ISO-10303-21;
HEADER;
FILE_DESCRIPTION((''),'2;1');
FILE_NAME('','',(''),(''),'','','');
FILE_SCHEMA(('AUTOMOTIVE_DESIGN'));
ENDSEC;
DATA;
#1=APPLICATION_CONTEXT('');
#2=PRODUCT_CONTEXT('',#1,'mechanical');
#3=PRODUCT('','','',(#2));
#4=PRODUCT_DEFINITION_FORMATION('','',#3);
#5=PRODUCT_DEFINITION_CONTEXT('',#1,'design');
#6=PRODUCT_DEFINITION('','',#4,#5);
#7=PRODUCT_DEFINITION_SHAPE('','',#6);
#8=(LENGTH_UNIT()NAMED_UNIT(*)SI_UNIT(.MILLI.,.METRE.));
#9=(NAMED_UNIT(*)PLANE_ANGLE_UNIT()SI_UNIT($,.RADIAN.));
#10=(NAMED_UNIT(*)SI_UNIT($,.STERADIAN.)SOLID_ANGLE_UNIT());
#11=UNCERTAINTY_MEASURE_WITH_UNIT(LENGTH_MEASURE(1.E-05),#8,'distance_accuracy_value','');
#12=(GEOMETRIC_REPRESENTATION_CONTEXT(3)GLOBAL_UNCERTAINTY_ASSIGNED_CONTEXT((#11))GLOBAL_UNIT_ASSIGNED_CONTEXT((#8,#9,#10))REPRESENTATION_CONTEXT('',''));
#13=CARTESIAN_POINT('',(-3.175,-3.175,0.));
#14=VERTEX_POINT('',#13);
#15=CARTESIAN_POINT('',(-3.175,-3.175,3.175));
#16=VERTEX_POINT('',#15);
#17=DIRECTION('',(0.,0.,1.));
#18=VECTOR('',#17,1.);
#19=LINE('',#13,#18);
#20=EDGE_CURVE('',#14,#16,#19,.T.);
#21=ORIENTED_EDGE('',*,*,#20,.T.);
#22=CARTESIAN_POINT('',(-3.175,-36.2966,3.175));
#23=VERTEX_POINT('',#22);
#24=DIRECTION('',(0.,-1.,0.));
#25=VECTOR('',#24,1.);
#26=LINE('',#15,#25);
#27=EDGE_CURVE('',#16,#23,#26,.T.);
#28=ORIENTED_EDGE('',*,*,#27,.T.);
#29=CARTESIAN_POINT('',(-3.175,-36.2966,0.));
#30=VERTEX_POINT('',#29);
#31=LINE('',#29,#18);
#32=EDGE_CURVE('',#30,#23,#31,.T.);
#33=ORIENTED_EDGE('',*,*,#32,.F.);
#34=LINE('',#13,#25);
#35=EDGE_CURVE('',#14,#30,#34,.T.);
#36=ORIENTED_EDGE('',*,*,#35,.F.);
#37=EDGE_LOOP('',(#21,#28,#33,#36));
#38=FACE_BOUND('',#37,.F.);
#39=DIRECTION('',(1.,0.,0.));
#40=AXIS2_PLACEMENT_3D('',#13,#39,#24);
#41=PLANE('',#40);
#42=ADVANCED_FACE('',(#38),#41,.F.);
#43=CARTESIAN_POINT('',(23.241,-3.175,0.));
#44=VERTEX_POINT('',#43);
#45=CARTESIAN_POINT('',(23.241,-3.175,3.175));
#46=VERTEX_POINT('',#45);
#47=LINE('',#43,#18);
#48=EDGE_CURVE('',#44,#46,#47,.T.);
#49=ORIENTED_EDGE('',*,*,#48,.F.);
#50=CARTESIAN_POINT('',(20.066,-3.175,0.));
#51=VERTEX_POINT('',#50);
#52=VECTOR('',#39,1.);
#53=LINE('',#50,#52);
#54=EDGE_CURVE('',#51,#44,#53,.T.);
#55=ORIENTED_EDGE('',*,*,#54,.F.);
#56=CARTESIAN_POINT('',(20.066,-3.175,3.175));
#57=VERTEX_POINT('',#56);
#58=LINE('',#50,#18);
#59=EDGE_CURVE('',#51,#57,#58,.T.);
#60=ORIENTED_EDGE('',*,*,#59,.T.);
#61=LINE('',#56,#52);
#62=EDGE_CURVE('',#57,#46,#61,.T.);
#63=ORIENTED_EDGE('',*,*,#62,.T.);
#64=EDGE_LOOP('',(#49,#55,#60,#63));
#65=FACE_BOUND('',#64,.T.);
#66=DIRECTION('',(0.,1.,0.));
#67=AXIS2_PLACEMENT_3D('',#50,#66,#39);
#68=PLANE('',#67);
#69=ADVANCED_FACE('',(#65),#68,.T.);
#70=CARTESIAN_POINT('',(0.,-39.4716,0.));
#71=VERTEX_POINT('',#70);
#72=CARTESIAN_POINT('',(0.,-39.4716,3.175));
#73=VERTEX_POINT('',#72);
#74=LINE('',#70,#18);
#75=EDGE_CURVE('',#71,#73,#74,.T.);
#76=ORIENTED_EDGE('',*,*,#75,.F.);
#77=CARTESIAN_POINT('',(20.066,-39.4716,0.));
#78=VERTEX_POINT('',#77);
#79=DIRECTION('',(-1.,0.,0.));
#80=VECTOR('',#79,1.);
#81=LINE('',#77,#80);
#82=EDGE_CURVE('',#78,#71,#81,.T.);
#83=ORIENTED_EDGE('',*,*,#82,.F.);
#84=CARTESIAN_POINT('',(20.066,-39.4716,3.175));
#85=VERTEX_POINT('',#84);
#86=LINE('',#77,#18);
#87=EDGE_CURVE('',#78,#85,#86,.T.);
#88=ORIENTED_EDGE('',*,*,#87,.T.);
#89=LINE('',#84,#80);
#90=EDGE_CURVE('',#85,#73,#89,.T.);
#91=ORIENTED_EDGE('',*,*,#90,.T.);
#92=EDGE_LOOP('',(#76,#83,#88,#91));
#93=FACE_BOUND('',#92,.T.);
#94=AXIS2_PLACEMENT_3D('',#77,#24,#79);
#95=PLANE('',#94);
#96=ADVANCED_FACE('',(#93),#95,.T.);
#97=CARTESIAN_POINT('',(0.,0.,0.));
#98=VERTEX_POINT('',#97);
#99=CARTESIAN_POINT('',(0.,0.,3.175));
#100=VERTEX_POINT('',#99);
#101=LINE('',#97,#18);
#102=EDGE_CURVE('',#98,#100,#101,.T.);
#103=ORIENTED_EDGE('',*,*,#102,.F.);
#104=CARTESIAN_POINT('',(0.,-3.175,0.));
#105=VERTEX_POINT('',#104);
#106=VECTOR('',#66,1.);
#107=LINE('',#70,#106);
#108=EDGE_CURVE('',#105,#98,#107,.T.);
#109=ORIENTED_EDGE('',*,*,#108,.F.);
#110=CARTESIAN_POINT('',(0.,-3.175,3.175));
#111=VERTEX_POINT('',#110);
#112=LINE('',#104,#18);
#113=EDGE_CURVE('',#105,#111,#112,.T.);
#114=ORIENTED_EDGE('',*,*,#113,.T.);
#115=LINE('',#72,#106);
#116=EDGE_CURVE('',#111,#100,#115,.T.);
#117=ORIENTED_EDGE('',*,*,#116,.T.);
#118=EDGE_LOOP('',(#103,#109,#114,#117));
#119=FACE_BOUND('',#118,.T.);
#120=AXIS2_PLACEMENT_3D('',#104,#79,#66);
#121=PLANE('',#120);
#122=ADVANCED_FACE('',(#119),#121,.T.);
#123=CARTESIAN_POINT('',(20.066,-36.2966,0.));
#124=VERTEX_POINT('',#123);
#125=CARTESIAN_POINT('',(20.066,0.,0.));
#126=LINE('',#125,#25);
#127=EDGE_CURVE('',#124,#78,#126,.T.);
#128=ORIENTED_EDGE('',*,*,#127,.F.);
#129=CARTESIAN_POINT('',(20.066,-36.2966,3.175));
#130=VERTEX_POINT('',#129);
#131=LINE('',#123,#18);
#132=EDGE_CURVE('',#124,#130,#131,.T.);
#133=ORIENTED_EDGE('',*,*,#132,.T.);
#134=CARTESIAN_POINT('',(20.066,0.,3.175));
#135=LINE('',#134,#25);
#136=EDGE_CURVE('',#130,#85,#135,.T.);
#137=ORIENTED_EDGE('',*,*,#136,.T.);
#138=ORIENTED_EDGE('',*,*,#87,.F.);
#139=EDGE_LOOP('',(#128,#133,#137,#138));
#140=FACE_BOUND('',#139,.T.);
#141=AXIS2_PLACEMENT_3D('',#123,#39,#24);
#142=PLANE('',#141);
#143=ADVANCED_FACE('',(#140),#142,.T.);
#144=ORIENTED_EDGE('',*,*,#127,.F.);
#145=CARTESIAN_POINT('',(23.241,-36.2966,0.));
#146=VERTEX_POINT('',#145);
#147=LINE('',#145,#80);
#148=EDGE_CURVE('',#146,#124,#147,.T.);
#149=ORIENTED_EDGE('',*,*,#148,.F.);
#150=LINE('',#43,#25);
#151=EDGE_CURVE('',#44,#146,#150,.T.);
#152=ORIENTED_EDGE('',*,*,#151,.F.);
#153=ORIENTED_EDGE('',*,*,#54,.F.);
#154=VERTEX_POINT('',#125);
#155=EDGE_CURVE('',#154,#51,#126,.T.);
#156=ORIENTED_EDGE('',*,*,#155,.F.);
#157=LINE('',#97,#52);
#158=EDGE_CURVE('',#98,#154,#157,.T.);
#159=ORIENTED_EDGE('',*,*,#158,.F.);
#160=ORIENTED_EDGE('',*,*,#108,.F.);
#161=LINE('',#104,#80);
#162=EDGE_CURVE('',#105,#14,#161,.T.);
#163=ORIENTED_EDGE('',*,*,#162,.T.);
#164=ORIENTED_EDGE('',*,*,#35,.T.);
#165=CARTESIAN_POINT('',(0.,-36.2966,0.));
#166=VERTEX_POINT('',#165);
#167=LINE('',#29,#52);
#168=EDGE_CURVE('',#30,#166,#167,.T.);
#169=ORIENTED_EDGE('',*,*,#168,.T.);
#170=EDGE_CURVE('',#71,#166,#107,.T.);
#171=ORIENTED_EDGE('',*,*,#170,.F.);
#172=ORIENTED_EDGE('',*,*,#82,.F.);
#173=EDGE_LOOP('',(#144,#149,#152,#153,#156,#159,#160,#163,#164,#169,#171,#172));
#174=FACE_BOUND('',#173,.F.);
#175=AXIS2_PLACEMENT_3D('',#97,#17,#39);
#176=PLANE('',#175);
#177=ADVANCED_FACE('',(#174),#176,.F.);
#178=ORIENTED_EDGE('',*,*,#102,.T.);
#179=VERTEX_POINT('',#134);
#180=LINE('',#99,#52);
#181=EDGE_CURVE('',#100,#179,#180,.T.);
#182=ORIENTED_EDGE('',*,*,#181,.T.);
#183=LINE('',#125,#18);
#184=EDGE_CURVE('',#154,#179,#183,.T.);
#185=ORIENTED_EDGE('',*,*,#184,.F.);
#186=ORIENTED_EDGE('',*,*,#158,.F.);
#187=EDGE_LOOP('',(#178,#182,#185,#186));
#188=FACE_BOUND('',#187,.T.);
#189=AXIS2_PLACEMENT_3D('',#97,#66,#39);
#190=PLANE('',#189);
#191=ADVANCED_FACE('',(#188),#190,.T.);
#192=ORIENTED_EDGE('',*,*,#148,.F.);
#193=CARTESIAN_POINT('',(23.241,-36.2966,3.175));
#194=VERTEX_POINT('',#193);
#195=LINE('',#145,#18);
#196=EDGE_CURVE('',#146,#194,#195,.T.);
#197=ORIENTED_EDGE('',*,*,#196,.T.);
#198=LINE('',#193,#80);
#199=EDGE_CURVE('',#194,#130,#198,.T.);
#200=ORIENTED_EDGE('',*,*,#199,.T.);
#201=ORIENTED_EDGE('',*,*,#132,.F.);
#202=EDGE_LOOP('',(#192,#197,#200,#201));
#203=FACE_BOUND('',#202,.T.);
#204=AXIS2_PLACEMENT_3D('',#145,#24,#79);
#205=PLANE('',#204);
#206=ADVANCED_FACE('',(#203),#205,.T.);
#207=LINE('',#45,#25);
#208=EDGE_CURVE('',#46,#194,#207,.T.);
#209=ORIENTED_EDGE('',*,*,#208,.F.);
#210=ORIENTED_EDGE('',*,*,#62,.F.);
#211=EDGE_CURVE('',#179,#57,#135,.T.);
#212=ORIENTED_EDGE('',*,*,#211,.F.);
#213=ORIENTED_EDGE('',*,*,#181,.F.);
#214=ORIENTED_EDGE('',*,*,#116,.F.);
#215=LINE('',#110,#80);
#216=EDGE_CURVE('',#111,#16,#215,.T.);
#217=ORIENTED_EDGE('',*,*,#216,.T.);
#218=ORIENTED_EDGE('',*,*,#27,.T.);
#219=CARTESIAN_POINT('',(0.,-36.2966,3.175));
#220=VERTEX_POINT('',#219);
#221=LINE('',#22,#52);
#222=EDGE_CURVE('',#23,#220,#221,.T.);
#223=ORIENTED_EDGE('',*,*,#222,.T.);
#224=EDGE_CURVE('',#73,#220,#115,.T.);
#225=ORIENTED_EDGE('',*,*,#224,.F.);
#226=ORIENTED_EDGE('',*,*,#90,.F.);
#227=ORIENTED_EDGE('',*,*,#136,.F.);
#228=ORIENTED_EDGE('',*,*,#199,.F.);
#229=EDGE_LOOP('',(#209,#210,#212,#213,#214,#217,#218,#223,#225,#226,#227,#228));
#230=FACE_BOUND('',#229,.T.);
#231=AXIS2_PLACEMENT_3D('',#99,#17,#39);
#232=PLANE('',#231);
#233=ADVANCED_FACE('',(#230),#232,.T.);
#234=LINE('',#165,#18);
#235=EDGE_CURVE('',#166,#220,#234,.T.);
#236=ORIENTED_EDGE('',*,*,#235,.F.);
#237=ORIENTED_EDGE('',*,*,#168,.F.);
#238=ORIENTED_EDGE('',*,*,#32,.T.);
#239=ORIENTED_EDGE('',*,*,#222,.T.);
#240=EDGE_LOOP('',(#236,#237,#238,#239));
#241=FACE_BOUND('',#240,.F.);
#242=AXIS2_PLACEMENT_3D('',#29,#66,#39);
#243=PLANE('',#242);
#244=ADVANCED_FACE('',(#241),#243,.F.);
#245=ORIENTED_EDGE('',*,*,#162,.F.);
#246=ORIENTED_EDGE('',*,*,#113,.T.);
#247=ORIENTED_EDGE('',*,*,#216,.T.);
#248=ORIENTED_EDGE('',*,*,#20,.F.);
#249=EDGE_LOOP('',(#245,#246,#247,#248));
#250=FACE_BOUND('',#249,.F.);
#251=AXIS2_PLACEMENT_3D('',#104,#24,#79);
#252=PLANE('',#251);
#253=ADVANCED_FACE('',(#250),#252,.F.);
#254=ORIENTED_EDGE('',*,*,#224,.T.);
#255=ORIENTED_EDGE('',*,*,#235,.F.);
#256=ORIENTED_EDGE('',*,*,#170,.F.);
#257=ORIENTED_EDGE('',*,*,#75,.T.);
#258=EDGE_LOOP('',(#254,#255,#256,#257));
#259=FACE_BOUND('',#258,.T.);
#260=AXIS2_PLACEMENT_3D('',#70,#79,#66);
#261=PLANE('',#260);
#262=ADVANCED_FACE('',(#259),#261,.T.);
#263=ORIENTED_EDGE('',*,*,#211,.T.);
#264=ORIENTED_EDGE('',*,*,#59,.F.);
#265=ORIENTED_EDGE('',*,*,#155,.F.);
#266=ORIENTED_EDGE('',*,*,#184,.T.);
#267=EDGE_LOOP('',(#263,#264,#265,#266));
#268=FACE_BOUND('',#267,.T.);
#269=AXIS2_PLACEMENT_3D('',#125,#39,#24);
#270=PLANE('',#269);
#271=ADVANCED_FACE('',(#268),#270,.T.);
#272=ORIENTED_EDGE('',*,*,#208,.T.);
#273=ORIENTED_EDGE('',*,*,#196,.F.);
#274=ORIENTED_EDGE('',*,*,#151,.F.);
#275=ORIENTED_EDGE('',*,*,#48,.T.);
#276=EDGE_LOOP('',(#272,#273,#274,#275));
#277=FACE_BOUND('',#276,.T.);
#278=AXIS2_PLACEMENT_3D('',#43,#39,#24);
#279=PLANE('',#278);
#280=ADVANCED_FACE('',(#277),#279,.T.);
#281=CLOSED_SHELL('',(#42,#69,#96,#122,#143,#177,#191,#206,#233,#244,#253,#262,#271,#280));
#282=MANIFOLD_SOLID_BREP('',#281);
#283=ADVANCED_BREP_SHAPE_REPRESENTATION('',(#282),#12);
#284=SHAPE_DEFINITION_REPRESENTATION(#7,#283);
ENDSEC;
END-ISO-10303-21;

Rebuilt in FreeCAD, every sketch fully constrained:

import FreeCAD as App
import Part
import Sketcher
Q = App.Units.Quantity

doc = App.newDocument("Part")
body = doc.addObject("PartDesign::Body", "Body")

sketch1 = doc.addObject("Sketcher::SketchObject", "Sketch")
body.addObject(sketch1)
sketch1.AttachmentSupport = (doc.XY_Plane, [""])
sketch1.MapMode = "FlatFace"
sketch1.addGeometry(Part.LineSegment(App.Vector(20.1, 0, 0), App.Vector(0, 0, 0)), False)
sketch1.addGeometry(Part.LineSegment(App.Vector(0, 0, 0), App.Vector(0, -3.2, 0)), False)
sketch1.addGeometry(Part.LineSegment(App.Vector(0, -3.2, 0), App.Vector(-3.2, -3.2, 0)), False)
sketch1.addGeometry(Part.LineSegment(App.Vector(-3.2, -3.2, 0), App.Vector(-3.2, -36.3, 0)), False)
sketch1.addGeometry(Part.LineSegment(App.Vector(-3.2, -36.3, 0), App.Vector(0, -36.3, 0)), False)
sketch1.addGeometry(Part.LineSegment(App.Vector(0, -36.3, 0), App.Vector(0, -39.5, 0)), False)
sketch1.addGeometry(Part.LineSegment(App.Vector(0, -39.5, 0), App.Vector(20.1, -39.5, 0)), False)
sketch1.addGeometry(Part.LineSegment(App.Vector(20.1, -39.5, 0), App.Vector(20.1, -36.3, 0)), False)
sketch1.addGeometry(Part.LineSegment(App.Vector(20.1, -36.3, 0), App.Vector(23.2, -36.3, 0)), False)
sketch1.addGeometry(Part.LineSegment(App.Vector(23.2, -36.3, 0), App.Vector(23.2, -3.2, 0)), False)
sketch1.addGeometry(Part.LineSegment(App.Vector(23.2, -3.2, 0), App.Vector(20.1, -3.2, 0)), False)
sketch1.addGeometry(Part.LineSegment(App.Vector(20.1, -3.2, 0), App.Vector(20.1, 0, 0)), False)
sketch1.addConstraint(Sketcher.Constraint("Coincident", 0, 2, 1, 1))
sketch1.addConstraint(Sketcher.Constraint("Coincident", 1, 2, 2, 1))
sketch1.addConstraint(Sketcher.Constraint("Coincident", 2, 2, 3, 1))
sketch1.addConstraint(Sketcher.Constraint("Coincident", 3, 2, 4, 1))
sketch1.addConstraint(Sketcher.Constraint("Coincident", 4, 2, 5, 1))
sketch1.addConstraint(Sketcher.Constraint("Coincident", 5, 2, 6, 1))
sketch1.addConstraint(Sketcher.Constraint("Coincident", 6, 2, 7, 1))
sketch1.addConstraint(Sketcher.Constraint("Coincident", 7, 2, 8, 1))
sketch1.addConstraint(Sketcher.Constraint("Coincident", 8, 2, 9, 1))
sketch1.addConstraint(Sketcher.Constraint("Coincident", 9, 2, 10, 1))
sketch1.addConstraint(Sketcher.Constraint("Coincident", 10, 2, 11, 1))
sketch1.addConstraint(Sketcher.Constraint("Coincident", 11, 2, 0, 1))
sketch1.addConstraint(Sketcher.Constraint("Horizontal", 0))
sketch1.addConstraint(Sketcher.Constraint("Vertical", 1))
sketch1.addConstraint(Sketcher.Constraint("Horizontal", 2))
sketch1.addConstraint(Sketcher.Constraint("Vertical", 3))
sketch1.addConstraint(Sketcher.Constraint("Horizontal", 4))
sketch1.addConstraint(Sketcher.Constraint("Vertical", 5))
sketch1.addConstraint(Sketcher.Constraint("Horizontal", 6))
sketch1.addConstraint(Sketcher.Constraint("Vertical", 7))
sketch1.addConstraint(Sketcher.Constraint("Horizontal", 8))
sketch1.addConstraint(Sketcher.Constraint("Vertical", 9))
sketch1.addConstraint(Sketcher.Constraint("Horizontal", 10))
sketch1.addConstraint(Sketcher.Constraint("Vertical", 11))
sketch1.addConstraint(Sketcher.Constraint("Coincident", 0, 2, -1, 1))
sketch1.addConstraint(Sketcher.Constraint("PointOnObject", 4, 2, -2))
sketch1.addConstraint(Sketcher.Constraint("Horizontal", 4, 2, 7, 2))
sketch1.addConstraint(Sketcher.Constraint("Horizontal", 2, 2, 9, 2))
sketch1.addConstraint(Sketcher.Constraint("Vertical", 7, 2, 10, 2))
sketch1.addConstraint(Sketcher.Constraint("Equal", 4, 8))
sketch1.addConstraint(Sketcher.Constraint("Equal", 10, 1))
sketch1.addConstraint(Sketcher.Constraint("Equal", 1, 5))
sketch1.addConstraint(Sketcher.Constraint("DistanceX", 0, 2, 0, 1, Q("0.79 in")))
sketch1.addConstraint(Sketcher.Constraint("DistanceX", 2, 2, 2, 1, Q("0.125 in")))
sketch1.addConstraint(Sketcher.Constraint("DistanceY", 3, 2, 3, 1, Q("1.304 in")))
pad1 = doc.addObject("PartDesign::Pad", "Pad")
body.addObject(pad1)
pad1.Profile = sketch1
pad1.Length = Q("0.125 in")

doc.recompute()
